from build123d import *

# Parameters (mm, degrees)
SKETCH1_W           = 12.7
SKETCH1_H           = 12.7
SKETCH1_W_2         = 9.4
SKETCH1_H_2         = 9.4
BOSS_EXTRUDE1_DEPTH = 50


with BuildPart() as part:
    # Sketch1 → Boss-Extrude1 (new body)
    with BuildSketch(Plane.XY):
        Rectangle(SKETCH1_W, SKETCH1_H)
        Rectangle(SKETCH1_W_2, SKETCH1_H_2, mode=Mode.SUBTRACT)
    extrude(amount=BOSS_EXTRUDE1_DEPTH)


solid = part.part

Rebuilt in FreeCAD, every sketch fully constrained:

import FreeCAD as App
import Part
import Sketcher

V = App.Vector


def add_polygon(sketch, points):
    """Adds a closed chain of lines whose ends are joined by coincident constraints."""
    first, n = sketch.GeometryCount, len(points)
    for a, b in zip(points, points[1:] + points[:1]):
        sketch.addGeometry(Part.LineSegment(App.Vector(*a, 0), App.Vector(*b, 0)), False)
    for i in range(n):
        sketch.addConstraint(Sketcher.Constraint("Coincident", first + i, 2, first + (i + 1) % n, 1))

doc = App.newDocument("Part")
params = doc.addObject("Spreadsheet::Sheet", "Params")
for row, (alias, value) in enumerate([
    ("sketch1_width", "12.7 mm"),
    ("sketch1_width2", "9.4 mm"),
    ("pad1_length", "50 mm"),
], start=1):
    params.set(f"A{row}", alias)
    params.set(f"B{row}", "=" + value)
    params.setAlias(f"B{row}", alias)

body = doc.addObject("PartDesign::Body", "Body")

# Sketch on XY plane
sketch1 = doc.addObject("Sketcher::SketchObject", "Sketch")
body.addObject(sketch1)
sketch1.AttachmentSupport = (doc.XY_Plane, [""])
sketch1.MapMode = "FlatFace"
add_polygon(sketch1, [(-6.35, 6.35), (-6.35, -6.35), (6.35, -6.35), (6.35, 6.35)])  # lines 0-3
add_polygon(sketch1, [(4.7, -4.7), (-4.7, -4.7), (-4.7, 4.7), (4.7, 4.7)])  # lines 4-7
sketch1.addConstraint(Sketcher.Constraint("Vertical", 0))
sketch1.addConstraint(Sketcher.Constraint("Horizontal", 1))
sketch1.addConstraint(Sketcher.Constraint("Vertical", 2))
sketch1.addConstraint(Sketcher.Constraint("Horizontal", 3))
sketch1.addConstraint(Sketcher.Constraint("Horizontal", 4))
sketch1.addConstraint(Sketcher.Constraint("Vertical", 5))
sketch1.addConstraint(Sketcher.Constraint("Horizontal", 6))
sketch1.addConstraint(Sketcher.Constraint("Vertical", 7))
sketch1.addConstraint(Sketcher.Constraint("Symmetric", 0, 2, 2, 2, -1, 1))
sketch1.addConstraint(Sketcher.Constraint("Symmetric", 4, 2, 6, 2, -1, 1))
sketch1.addConstraint(Sketcher.Constraint("Equal", 3, 0))
sketch1.addConstraint(Sketcher.Constraint("Equal", 6, 5))
sketch1.addConstraint(Sketcher.Constraint("DistanceX", 1, 1, 1, 2, 12.7))
sketch1.addConstraint(Sketcher.Constraint("DistanceX", 4, 2, 4, 1, 9.4))
sketch1.setExpression("Constraints[20]", "Params.sketch1_width")
sketch1.setExpression("Constraints[21]", "Params.sketch1_width2")
pad1 = doc.addObject("PartDesign::Pad", "Pad")
body.addObject(pad1)
pad1.Profile = sketch1
pad1.setExpression("Length", "Params.pad1_length")

doc.recompute()
